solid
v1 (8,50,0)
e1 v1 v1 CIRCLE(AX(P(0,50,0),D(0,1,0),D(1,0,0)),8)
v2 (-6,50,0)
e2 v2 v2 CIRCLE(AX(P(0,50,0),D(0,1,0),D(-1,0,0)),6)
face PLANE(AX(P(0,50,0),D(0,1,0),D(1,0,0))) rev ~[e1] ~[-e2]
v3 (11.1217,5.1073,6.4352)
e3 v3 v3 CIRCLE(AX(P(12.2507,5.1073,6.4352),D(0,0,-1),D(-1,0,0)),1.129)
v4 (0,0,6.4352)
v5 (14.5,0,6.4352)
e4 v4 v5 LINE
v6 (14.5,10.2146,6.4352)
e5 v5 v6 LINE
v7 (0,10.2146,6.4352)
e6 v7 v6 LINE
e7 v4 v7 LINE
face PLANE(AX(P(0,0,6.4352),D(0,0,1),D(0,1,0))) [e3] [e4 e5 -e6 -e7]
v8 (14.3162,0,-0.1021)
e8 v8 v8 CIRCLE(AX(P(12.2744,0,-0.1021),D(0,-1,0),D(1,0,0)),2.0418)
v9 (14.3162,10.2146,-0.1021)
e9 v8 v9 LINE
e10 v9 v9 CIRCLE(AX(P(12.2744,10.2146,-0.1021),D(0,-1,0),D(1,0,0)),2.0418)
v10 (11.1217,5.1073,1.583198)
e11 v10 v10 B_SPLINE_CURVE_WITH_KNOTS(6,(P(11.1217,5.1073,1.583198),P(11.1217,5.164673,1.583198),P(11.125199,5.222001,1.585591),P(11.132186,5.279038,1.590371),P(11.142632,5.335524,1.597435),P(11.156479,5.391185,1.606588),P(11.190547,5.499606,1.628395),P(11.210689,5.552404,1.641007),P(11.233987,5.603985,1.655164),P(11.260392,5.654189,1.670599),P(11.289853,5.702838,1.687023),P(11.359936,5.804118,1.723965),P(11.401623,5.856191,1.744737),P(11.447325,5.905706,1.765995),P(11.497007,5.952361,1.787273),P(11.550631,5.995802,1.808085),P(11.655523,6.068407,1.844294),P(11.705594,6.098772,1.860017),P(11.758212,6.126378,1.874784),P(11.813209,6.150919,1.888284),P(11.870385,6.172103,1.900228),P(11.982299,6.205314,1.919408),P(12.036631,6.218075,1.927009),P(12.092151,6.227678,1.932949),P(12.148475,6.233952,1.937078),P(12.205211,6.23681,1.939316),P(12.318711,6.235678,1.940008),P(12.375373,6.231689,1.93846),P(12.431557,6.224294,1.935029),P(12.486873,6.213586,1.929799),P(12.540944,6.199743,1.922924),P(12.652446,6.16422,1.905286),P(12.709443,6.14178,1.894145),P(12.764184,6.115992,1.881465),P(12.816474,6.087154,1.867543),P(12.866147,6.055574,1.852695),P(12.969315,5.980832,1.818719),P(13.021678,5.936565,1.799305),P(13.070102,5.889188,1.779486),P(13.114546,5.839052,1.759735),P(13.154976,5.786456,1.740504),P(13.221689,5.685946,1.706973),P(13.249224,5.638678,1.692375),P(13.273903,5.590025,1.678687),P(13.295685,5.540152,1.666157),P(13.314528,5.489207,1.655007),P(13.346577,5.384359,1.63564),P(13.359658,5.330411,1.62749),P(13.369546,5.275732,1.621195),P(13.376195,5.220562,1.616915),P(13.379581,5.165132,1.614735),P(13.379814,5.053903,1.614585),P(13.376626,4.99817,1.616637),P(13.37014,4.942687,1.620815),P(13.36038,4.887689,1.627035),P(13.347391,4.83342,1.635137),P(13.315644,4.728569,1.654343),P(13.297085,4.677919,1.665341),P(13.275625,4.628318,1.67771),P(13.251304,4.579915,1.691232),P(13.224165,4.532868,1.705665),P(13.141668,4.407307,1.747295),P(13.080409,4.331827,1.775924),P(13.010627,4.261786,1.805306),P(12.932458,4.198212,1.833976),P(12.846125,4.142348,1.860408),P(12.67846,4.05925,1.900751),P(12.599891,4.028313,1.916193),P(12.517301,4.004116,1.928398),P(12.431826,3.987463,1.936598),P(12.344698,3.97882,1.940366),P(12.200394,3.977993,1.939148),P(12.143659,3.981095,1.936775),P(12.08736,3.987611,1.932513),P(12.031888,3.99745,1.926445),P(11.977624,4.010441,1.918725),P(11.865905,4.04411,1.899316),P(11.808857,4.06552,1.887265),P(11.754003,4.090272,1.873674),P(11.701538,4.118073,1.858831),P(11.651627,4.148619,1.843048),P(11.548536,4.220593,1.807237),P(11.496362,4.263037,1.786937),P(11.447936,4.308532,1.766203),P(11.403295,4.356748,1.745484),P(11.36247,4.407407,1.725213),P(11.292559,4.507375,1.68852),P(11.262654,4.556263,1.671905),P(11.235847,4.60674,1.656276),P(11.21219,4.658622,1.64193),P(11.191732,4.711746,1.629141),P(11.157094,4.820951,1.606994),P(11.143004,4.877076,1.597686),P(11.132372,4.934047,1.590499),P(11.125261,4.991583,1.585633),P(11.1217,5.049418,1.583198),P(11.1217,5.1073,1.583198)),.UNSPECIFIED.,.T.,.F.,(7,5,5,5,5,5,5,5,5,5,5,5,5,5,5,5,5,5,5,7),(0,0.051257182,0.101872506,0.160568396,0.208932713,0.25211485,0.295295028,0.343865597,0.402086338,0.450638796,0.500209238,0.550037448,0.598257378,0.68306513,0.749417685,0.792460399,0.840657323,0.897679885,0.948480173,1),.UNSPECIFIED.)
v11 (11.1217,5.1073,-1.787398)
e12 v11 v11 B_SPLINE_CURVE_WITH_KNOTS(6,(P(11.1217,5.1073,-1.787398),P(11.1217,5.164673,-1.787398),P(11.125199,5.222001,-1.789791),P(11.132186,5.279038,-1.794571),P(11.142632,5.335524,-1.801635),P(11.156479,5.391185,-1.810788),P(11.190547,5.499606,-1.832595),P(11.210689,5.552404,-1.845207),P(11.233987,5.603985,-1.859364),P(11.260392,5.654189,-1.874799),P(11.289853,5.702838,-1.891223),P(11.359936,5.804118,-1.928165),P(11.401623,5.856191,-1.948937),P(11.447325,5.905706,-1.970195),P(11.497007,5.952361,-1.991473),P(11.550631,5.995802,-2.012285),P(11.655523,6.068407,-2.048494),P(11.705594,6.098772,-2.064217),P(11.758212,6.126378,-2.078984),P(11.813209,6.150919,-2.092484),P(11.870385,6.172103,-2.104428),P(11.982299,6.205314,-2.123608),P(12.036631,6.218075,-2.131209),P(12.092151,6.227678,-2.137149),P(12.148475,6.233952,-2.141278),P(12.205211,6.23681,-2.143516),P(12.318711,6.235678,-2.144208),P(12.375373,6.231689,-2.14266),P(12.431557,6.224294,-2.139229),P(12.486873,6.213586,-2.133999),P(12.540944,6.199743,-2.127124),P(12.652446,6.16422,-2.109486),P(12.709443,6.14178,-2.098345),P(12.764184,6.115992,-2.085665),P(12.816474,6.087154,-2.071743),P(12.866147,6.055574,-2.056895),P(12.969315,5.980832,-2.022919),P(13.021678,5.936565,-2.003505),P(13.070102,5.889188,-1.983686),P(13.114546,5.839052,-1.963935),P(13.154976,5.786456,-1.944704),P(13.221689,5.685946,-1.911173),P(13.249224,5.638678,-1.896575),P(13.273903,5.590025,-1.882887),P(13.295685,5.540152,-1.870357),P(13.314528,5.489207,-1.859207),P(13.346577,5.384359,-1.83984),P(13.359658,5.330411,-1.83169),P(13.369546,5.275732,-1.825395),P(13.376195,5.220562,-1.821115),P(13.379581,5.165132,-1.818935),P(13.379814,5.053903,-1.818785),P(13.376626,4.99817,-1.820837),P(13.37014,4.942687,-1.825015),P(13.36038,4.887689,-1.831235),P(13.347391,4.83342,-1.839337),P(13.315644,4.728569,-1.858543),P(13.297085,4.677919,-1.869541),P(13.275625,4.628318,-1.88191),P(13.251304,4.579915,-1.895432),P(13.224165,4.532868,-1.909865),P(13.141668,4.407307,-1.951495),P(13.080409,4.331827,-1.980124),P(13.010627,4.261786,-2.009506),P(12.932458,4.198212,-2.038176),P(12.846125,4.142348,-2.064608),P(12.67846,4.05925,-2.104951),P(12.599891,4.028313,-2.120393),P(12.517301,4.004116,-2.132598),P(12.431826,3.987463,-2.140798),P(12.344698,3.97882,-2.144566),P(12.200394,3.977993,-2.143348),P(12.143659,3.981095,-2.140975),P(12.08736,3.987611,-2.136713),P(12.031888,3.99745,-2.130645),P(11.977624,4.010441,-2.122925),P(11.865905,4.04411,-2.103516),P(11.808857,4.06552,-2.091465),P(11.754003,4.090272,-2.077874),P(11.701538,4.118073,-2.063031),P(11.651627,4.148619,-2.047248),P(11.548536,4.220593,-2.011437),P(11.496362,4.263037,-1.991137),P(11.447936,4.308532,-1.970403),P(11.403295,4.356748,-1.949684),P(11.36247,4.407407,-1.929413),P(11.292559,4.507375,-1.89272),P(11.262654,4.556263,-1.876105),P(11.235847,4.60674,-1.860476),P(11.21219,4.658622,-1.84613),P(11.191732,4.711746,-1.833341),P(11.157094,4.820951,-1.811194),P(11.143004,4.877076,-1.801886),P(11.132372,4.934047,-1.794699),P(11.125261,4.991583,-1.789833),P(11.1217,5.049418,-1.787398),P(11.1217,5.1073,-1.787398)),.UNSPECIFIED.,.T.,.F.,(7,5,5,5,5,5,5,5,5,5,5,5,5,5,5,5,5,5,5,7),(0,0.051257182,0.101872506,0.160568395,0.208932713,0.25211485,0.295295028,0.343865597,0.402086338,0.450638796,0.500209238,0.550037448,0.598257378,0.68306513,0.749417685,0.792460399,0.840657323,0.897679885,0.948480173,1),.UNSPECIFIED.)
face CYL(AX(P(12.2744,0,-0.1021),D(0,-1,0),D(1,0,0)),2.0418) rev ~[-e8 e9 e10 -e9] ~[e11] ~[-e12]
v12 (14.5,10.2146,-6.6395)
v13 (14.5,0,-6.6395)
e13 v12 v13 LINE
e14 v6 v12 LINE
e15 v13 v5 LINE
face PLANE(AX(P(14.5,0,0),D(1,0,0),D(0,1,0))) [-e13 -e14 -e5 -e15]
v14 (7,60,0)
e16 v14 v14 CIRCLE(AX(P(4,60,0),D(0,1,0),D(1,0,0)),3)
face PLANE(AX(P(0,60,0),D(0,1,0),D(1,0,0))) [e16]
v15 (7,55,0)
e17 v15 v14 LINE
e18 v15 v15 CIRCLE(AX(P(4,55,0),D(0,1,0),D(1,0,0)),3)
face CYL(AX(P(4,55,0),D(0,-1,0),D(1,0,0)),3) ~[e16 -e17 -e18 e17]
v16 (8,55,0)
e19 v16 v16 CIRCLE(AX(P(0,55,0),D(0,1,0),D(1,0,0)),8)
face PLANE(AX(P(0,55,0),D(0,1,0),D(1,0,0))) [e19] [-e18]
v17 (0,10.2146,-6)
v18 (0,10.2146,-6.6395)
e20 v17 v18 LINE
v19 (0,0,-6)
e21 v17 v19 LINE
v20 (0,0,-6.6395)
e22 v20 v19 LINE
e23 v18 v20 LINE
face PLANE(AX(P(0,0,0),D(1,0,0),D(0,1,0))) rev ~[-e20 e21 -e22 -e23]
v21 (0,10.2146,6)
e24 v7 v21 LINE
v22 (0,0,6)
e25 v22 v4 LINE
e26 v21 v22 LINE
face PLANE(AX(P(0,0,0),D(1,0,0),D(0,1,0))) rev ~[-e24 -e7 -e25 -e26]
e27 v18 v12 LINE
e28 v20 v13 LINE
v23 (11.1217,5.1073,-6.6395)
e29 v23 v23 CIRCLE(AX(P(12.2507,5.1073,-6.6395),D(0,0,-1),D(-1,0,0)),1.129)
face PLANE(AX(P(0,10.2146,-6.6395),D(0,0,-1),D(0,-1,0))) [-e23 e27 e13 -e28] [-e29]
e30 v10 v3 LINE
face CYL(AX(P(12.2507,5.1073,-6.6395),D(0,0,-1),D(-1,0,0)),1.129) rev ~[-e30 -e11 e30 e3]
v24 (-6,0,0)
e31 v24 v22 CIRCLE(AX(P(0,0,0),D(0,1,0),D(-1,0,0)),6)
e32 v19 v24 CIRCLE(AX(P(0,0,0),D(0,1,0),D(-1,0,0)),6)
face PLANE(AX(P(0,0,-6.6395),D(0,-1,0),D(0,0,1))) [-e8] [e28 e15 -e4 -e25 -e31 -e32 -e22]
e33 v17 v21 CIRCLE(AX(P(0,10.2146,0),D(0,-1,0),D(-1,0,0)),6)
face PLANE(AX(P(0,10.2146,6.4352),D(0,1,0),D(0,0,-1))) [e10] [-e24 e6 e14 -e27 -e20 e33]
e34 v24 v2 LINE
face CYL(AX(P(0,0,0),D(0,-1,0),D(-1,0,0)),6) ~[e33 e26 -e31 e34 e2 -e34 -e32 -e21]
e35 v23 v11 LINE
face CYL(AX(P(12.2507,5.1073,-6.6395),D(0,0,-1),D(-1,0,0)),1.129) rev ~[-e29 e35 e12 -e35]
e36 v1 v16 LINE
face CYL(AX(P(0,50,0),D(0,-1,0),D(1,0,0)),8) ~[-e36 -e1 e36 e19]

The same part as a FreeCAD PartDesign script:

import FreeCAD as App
import Part
import Sketcher
Q = App.Units.Quantity

doc = App.newDocument("Part")
body = doc.addObject("PartDesign::Body", "Body")

sketch1 = body.newObject("Sketcher::SketchObject", "Sketch")
sketch1.AttachmentSupport = (doc.getObject("XZ_Plane"), [""])
sketch1.MapMode = "FlatFace"
sketch1.addGeometry(Part.Circle(App.Vector(0, 0, 0), App.Vector(0, 0, 1), 6), False)
sketch1.addConstraint([
    Sketcher.Constraint("Coincident", 0, 3, -1, 1),
    Sketcher.Constraint("Diameter", 0, Q("12 mm")),
])
pad1 = body.newObject("PartDesign::Pad", "Pad")
pad1.Profile = sketch1
pad1.Length = 50
pad1.Reversed = True

sketch2 = body.newObject("Sketcher::SketchObject", "Sketch001")
sketch2.AttachmentSupport = (doc.getObject("XZ_Plane"), [""])
sketch2.MapMode = "FlatFace"
sketch2.AttachmentOffset = App.Placement(App.Vector(0, 0, -50), App.Rotation())
sketch2.addGeometry(Part.Circle(App.Vector(0, 0, 0), App.Vector(0, 0, 1), 8), False)
sketch2.addConstraint([
    Sketcher.Constraint("Coincident", 0, 3, -1, 1),
    Sketcher.Constraint("Diameter", 0, Q("16 mm")),
])
pad2 = body.newObject("PartDesign::Pad", "Pad001")
pad2.Profile = sketch2
pad2.Length = 5
pad2.Reversed = True

sketch3 = body.newObject("Sketcher::SketchObject", "Sketch002")
sketch3.AttachmentSupport = (doc.getObject("XZ_Plane"), [""])
sketch3.MapMode = "FlatFace"
sketch3.AttachmentOffset = App.Placement(App.Vector(0, 0, -55), App.Rotation())
sketch3.addGeometry(Part.Circle(App.Vector(4, 0, 0), App.Vector(0, 0, 1), 3), False)
sketch3.addConstraint([
    Sketcher.Constraint("PointOnObject", 0, 3, -1),
    Sketcher.Constraint("Diameter", 0, Q("6 mm")),
    Sketcher.Constraint("DistanceX", -1, 1, 0, 3, Q("4 mm")),
])
pad3 = body.newObject("PartDesign::Pad", "Pad002")
pad3.Profile = sketch3
pad3.Length = 5
pad3.Reversed = True

sketch4 = body.newObject("Sketcher::SketchObject", "Sketch003")
sketch4.AttachmentSupport = (doc.getObject("YZ_Plane"), [""])
sketch4.MapMode = "FlatFace"
sketch4.addGeometry([
    Part.LineSegment(App.Vector(10.2146, 6.4352, 0), App.Vector(0, 6.4352, 0)),
    Part.LineSegment(App.Vector(0, 6.4352, 0), App.Vector(0, -6.6395, 0)),
    Part.LineSegment(App.Vector(0, -6.6395, 0), App.Vector(10.2146, -6.6395, 0)),
    Part.LineSegment(App.Vector(10.2146, -6.6395, 0), App.Vector(10.2146, 6.4352, 0)),
], False)
sketch4.addConstraint([
    Sketcher.Constraint("Coincident", 0, 2, 1, 1),
    Sketcher.Constraint("Coincident", 1, 2, 2, 1),
    Sketcher.Constraint("Coincident", 2, 2, 3, 1),
    Sketcher.Constraint("Coincident", 3, 2, 0, 1),
    Sketcher.Constraint("Horizontal", 0),
    Sketcher.Constraint("Vertical", 1),
    Sketcher.Constraint("Horizontal", 2),
    Sketcher.Constraint("Vertical", 3),
    Sketcher.Constraint("PointOnObject", 0, 2, -2),
    Sketcher.Constraint("DistanceX", 0, 2, 0, 1, Q("10.2146 mm")),
    Sketcher.Constraint("DistanceY", 1, 2, 1, 1, Q("13.0747 mm")),
    Sketcher.Constraint("DistanceY", -1, 1, 0, 2, Q("6.4352 mm")),
])
pad4 = body.newObject("PartDesign::Pad", "Pad003")
pad4.Profile = sketch4
pad4.Length = 14.5

sketch5 = body.newObject("Sketcher::SketchObject", "Sketch004")
sketch5.AttachmentSupport = (doc.getObject("XZ_Plane"), [""])
sketch5.MapMode = "FlatFace"
sketch5.addGeometry(Part.Circle(App.Vector(12.2744, -0.1021, 0), App.Vector(0, 0, 1), 2.0418), False)
sketch5.addConstraint([
    Sketcher.Constraint("Diameter", 0, Q("4.0836 mm")),
    Sketcher.Constraint("DistanceY", 0, 3, -1, 1, Q("0.102 mm")),
    Sketcher.Constraint("DistanceX", -1, 1, 0, 3, Q("12.2744 mm")),
])
pocket1 = body.newObject("PartDesign::Pocket", "Pocket")
pocket1.Profile = sketch5
pocket1.Length = 14.5

sketch6 = body.newObject("Sketcher::SketchObject", "Sketch005")
sketch6.AttachmentSupport = (doc.getObject("XY_Plane"), [""])
sketch6.MapMode = "FlatFace"
sketch6.AttachmentOffset = App.Placement(App.Vector(0, 0, -6.6395), App.Rotation())
sketch6.addGeometry(Part.Circle(App.Vector(12.2507, 5.1073, 0), App.Vector(0, 0, 1), 1.129), False)
sketch6.addConstraint([
    Sketcher.Constraint("Diameter", 0, Q("2.258 mm")),
    Sketcher.Constraint("DistanceX", -1, 1, 0, 3, Q("12.2507 mm")),
    Sketcher.Constraint("DistanceY", -1, 1, 0, 3, Q("5.1073 mm")),
])
pocket2 = body.newObject("PartDesign::Pocket", "Pocket001")
pocket2.Profile = sketch6
pocket2.Length = 14.5
pocket2.Reversed = True

doc.recompute()
